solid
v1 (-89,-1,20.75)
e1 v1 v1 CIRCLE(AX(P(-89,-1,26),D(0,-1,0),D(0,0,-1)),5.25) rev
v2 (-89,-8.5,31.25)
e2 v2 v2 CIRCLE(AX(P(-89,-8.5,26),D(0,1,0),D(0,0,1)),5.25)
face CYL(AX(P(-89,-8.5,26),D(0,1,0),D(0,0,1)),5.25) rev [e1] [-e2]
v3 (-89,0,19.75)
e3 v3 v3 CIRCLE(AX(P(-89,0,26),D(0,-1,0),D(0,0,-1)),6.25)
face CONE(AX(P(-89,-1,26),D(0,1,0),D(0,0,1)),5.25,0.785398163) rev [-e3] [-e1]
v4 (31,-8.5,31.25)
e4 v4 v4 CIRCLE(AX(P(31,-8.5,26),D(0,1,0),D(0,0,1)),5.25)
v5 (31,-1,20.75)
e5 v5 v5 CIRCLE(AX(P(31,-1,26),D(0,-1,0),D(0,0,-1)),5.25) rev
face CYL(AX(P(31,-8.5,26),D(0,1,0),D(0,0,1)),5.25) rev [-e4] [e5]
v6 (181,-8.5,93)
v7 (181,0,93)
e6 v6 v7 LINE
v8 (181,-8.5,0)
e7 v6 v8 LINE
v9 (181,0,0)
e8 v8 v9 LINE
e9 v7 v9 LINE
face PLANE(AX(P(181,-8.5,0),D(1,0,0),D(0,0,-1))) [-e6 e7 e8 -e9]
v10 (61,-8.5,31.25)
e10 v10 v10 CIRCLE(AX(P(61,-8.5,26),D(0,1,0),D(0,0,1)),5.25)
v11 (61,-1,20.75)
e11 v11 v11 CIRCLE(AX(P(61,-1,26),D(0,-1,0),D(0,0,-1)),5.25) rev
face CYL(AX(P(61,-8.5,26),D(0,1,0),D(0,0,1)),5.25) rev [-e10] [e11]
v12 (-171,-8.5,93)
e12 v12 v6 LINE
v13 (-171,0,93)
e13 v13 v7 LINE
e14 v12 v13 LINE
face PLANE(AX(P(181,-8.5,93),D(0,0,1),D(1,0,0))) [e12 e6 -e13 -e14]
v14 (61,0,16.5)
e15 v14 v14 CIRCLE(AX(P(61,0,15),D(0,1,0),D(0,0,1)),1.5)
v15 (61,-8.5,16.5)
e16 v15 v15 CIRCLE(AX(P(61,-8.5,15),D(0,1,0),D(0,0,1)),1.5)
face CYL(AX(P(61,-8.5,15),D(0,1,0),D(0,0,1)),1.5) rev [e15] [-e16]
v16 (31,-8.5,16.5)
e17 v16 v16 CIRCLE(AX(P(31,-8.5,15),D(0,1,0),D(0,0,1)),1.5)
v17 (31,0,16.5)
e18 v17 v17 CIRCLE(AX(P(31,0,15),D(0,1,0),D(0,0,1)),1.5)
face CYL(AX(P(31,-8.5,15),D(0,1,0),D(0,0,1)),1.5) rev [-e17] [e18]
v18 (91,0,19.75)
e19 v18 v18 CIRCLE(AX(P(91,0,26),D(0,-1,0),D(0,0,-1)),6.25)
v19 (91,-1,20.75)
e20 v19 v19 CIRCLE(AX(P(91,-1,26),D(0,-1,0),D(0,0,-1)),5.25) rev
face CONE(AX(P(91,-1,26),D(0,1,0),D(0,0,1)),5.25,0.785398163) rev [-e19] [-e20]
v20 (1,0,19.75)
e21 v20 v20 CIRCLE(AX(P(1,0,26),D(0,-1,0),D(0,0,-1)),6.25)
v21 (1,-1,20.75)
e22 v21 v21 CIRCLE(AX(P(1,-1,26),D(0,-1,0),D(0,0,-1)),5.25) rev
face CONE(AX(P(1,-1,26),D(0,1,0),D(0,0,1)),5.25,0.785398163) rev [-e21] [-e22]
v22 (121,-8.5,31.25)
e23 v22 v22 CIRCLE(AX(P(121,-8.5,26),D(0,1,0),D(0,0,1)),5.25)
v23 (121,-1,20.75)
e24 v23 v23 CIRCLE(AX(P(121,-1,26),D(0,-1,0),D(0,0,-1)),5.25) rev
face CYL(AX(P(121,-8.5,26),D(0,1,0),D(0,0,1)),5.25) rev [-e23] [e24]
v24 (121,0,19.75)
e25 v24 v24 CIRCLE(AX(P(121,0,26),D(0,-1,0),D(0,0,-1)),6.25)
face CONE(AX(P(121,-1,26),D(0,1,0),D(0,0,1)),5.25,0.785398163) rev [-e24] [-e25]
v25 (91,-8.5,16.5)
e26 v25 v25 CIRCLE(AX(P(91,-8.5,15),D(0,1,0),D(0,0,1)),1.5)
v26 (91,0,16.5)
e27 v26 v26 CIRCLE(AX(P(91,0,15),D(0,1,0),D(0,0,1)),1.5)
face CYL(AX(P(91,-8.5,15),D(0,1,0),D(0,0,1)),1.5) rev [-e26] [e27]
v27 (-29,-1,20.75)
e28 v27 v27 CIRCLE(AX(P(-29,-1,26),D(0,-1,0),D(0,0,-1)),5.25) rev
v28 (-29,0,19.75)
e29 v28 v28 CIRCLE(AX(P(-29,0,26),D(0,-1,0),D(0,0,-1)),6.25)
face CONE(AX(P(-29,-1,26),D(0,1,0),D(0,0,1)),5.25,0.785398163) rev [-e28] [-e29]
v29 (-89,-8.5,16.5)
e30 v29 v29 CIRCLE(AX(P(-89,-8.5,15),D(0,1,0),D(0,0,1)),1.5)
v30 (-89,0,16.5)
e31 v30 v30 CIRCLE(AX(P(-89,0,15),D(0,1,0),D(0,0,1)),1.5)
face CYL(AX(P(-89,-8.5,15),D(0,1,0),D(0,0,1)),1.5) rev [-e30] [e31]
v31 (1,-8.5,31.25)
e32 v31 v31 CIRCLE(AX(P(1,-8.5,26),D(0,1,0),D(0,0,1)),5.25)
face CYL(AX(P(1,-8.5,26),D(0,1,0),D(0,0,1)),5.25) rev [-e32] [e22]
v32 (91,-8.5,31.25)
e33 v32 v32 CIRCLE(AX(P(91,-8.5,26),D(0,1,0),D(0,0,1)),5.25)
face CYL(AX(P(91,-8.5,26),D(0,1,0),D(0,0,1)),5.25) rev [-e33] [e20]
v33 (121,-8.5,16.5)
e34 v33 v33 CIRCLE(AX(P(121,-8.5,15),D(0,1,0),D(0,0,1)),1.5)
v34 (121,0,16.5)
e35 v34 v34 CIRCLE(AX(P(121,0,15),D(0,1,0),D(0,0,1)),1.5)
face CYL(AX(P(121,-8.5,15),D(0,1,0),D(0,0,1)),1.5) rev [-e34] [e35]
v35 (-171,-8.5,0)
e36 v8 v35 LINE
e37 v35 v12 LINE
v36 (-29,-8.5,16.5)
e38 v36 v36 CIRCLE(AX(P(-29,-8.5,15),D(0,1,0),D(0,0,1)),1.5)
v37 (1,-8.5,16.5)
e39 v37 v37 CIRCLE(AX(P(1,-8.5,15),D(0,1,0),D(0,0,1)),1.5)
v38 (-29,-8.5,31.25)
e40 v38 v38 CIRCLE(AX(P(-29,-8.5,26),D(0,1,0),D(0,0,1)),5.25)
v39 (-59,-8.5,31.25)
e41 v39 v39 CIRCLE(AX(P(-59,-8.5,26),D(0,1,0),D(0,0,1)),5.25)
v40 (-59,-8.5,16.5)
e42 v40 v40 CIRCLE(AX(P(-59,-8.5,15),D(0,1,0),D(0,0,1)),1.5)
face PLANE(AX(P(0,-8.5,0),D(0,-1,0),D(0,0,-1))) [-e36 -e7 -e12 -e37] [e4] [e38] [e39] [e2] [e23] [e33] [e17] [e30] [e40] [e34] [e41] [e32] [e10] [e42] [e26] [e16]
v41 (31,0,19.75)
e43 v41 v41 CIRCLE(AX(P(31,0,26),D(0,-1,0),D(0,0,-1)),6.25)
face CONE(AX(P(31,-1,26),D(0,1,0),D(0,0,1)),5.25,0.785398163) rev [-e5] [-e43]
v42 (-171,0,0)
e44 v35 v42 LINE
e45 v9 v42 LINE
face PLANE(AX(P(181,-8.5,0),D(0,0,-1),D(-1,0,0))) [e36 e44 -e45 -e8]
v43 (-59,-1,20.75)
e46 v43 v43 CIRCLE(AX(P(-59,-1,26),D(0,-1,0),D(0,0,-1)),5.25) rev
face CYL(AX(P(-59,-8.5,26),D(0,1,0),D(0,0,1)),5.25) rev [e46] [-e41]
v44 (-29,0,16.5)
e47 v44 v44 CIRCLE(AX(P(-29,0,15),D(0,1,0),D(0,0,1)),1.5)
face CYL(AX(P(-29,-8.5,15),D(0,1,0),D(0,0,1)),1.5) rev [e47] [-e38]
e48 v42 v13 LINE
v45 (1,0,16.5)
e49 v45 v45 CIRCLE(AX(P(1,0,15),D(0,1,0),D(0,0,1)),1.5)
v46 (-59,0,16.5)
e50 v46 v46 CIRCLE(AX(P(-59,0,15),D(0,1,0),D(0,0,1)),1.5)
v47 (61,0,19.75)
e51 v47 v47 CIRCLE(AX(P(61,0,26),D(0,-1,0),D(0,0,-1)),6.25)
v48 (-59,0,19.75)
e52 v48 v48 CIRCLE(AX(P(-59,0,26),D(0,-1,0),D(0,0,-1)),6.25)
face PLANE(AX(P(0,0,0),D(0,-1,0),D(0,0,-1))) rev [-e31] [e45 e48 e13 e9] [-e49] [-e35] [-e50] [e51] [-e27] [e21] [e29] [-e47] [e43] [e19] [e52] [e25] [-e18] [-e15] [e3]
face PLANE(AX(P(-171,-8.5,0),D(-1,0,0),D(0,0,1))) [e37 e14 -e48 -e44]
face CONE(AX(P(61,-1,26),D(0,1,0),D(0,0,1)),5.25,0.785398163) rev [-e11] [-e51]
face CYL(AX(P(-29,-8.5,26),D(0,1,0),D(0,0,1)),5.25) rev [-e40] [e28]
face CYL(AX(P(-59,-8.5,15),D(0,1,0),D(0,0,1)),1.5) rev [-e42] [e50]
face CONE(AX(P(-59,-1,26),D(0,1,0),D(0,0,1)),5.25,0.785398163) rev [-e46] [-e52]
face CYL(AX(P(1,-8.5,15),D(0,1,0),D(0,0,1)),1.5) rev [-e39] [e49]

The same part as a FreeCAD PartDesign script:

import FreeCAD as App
import Part
import Sketcher
Q = App.Units.Quantity


def edges_at(feature, points):
    """Names of the edges that pass closest to the given points."""
    edges = feature.Shape.Edges
    near = lambda p: min(range(len(edges)), key=lambda i: edges[i].distToShape(Part.Vertex(*p))[0])
    return sorted({f"Edge{near(p) + 1}" for p in points})


def add_polygon(sketch, points):
    """Adds a closed chain of lines whose ends are joined by coincident constraints."""
    first, n = sketch.GeometryCount, len(points)
    for a, b in zip(points, points[1:] + points[:1]):
        sketch.addGeometry(Part.LineSegment(App.Vector(*a, 0), App.Vector(*b, 0)), False)
    for i in range(n):
        sketch.addConstraint(Sketcher.Constraint("Coincident", first + i, 2, first + (i + 1) % n, 1))

doc = App.newDocument("Part")
body = doc.addObject("PartDesign::Body", "Body")

sketch1 = body.newObject("Sketcher::SketchObject", "Sketch")
sketch1.AttachmentSupport = (doc.getObject("XZ_Plane"), [""])
sketch1.MapMode = "FlatFace"
add_polygon(sketch1, [(-171, 0), (-171, 93), (181, 93), (181, 0)])
sketch1.addConstraint(Sketcher.Constraint("Vertical", 0))
sketch1.addConstraint(Sketcher.Constraint("Horizontal", 1))
sketch1.addConstraint(Sketcher.Constraint("Vertical", 2))
sketch1.addConstraint(Sketcher.Constraint("Horizontal", 3))
sketch1.addConstraint(Sketcher.Constraint("PointOnObject", 2, 2, -1))
sketch1.addConstraint(Sketcher.Constraint("DistanceX", 1, 1, 1, 2, Q("352 mm")))
sketch1.addConstraint(Sketcher.Constraint("DistanceY", 0, 1, 0, 2, Q("93 mm")))
sketch1.addConstraint(Sketcher.Constraint("DistanceX", 0, 2, -1, 1, Q("171 mm")))
pad1 = body.newObject("PartDesign::Pad", "Pad")
pad1.Profile = sketch1
pad1.Length = 8.5

sketch2 = body.newObject("Sketcher::SketchObject", "Sketch001")
sketch2.AttachmentSupport = (doc.getObject("XZ_Plane"), [""])
sketch2.MapMode = "FlatFace"
sketch2.addGeometry(Part.Circle(App.Vector(-89, 15, 0), App.Vector(0, 0, 1), 1.5), False)
sketch2.addGeometry(Part.Circle(App.Vector(-89, 26, 0), App.Vector(0, 0, 1), 5.2), False)
sketch2.addGeometry(Part.Circle(App.Vector(-59, 15, 0), App.Vector(0, 0, 1), 1.5), False)
sketch2.addGeometry(Part.Circle(App.Vector(-59, 26, 0), App.Vector(0, 0, 1), 5.2), False)
sketch2.addGeometry(Part.Circle(App.Vector(-29, 15, 0), App.Vector(0, 0, 1), 1.5), False)
sketch2.addGeometry(Part.Circle(App.Vector(-29, 26, 0), App.Vector(0, 0, 1), 5.2), False)
sketch2.addGeometry(Part.Circle(App.Vector(1, 15, 0), App.Vector(0, 0, 1), 1.5), False)
sketch2.addGeometry(Part.Circle(App.Vector(1, 26, 0), App.Vector(0, 0, 1), 5.2), False)
sketch2.addGeometry(Part.Circle(App.Vector(31, 15, 0), App.Vector(0, 0, 1), 1.5), False)
sketch2.addGeometry(Part.Circle(App.Vector(31, 26, 0), App.Vector(0, 0, 1), 5.2), False)
sketch2.addGeometry(Part.Circle(App.Vector(61, 15, 0), App.Vector(0, 0, 1), 1.5), False)
sketch2.addGeometry(Part.Circle(App.Vector(61, 26, 0), App.Vector(0, 0, 1), 5.2), False)
sketch2.addGeometry(Part.Circle(App.Vector(91, 15, 0), App.Vector(0, 0, 1), 1.5), False)
sketch2.addGeometry(Part.Circle(App.Vector(91, 26, 0), App.Vector(0, 0, 1), 5.2), False)
sketch2.addGeometry(Part.Circle(App.Vector(121, 15, 0), App.Vector(0, 0, 1), 1.5), False)
sketch2.addGeometry(Part.Circle(App.Vector(121, 26, 0), App.Vector(0, 0, 1), 5.2), False)
sketch2.addConstraint(Sketcher.Constraint("Equal", 0, 2))
sketch2.addConstraint(Sketcher.Constraint("Equal", 1, 3))
sketch2.addConstraint(Sketcher.Constraint("Equal", 2, 4))
sketch2.addConstraint(Sketcher.Constraint("Equal", 3, 5))
sketch2.addConstraint(Sketcher.Constraint("Equal", 4, 6))
sketch2.addConstraint(Sketcher.Constraint("Equal", 5, 7))
sketch2.addConstraint(Sketcher.Constraint("Equal", 6, 8))
sketch2.addConstraint(Sketcher.Constraint("Equal", 7, 9))
sketch2.addConstraint(Sketcher.Constraint("Equal", 8, 10))
sketch2.addConstraint(Sketcher.Constraint("Equal", 9, 11))
sketch2.addConstraint(Sketcher.Constraint("Equal", 10, 12))
sketch2.addConstraint(Sketcher.Constraint("Equal", 11, 13))
sketch2.addConstraint(Sketcher.Constraint("Equal", 12, 14))
sketch2.addConstraint(Sketcher.Constraint("Equal", 13, 15))
sketch2.addConstraint(Sketcher.Constraint("Horizontal", 0, 3, 2, 3))
sketch2.addConstraint(Sketcher.Constraint("Horizontal", 1, 3, 3, 3))
sketch2.addConstraint(Sketcher.Constraint("Horizontal", 2, 3, 4, 3))
sketch2.addConstraint(Sketcher.Constraint("Horizontal", 3, 3, 5, 3))
sketch2.addConstraint(Sketcher.Constraint("Horizontal", 4, 3, 6, 3))
sketch2.addConstraint(Sketcher.Constraint("Horizontal", 5, 3, 7, 3))
sketch2.addConstraint(Sketcher.Constraint("Horizontal", 6, 3, 8, 3))
sketch2.addConstraint(Sketcher.Constraint("Horizontal", 7, 3, 9, 3))
sketch2.addConstraint(Sketcher.Constraint("Horizontal", 8, 3, 10, 3))
sketch2.addConstraint(Sketcher.Constraint("Horizontal", 9, 3, 11, 3))
sketch2.addConstraint(Sketcher.Constraint("Horizontal", 10, 3, 12, 3))
sketch2.addConstraint(Sketcher.Constraint("Horizontal", 11, 3, 13, 3))
sketch2.addConstraint(Sketcher.Constraint("Horizontal", 12, 3, 14, 3))
sketch2.addConstraint(Sketcher.Constraint("Horizontal", 13, 3, 15, 3))
sketch2.addConstraint(Sketcher.Constraint("Vertical", 0, 3, 1, 3))
sketch2.addConstraint(Sketcher.Constraint("Vertical", 2, 3, 3, 3))
sketch2.addConstraint(Sketcher.Constraint("Vertical", 4, 3, 5, 3))
sketch2.addConstraint(Sketcher.Constraint("Vertical", 6, 3, 7, 3))
sketch2.addConstraint(Sketcher.Constraint("Vertical", 8, 3, 9, 3))
sketch2.addConstraint(Sketcher.Constraint("Vertical", 10, 3, 11, 3))
sketch2.addConstraint(Sketcher.Constraint("Vertical", 12, 3, 13, 3))
sketch2.addConstraint(Sketcher.Constraint("Vertical", 14, 3, 15, 3))
sketch2.addConstraint(Sketcher.Constraint("Diameter", 0, Q("3 mm")))
sketch2.addConstraint(Sketcher.Constraint("Diameter", 1, Q("10.5 mm")))
sketch2.addConstraint(Sketcher.Constraint("DistanceX", 0, 3, -1, 1, Q("89 mm")))
sketch2.addConstraint(Sketcher.Constraint("DistanceY", -1, 1, 0, 3, Q("15 mm")))
sketch2.addConstraint(Sketcher.Constraint("DistanceY", -1, 1, 1, 3, Q("26 mm")))
sketch2.addConstraint(Sketcher.Constraint("DistanceX", 2, 3, -1, 1, Q("59 mm")))
sketch2.addConstraint(Sketcher.Constraint("DistanceX", 4, 3, -1, 1, Q("29 mm")))
sketch2.addConstraint(Sketcher.Constraint("DistanceX", -1, 1, 6, 3, Q("1 mm")))
sketch2.addConstraint(Sketcher.Constraint("DistanceX", -1, 1, 8, 3, Q("31 mm")))
sketch2.addConstraint(Sketcher.Constraint("DistanceX", -1, 1, 10, 3, Q("61 mm")))
sketch2.addConstraint(Sketcher.Constraint("DistanceX", -1, 1, 12, 3, Q("91 mm")))
sketch2.addConstraint(Sketcher.Constraint("DistanceX", -1, 1, 14, 3, Q("121 mm")))
pocket1 = body.newObject("PartDesign::Pocket", "Pocket")
pocket1.Profile = sketch2
pocket1.Type = "ThroughAll"
pocket1.Reversed = True
doc.recompute()

chamfer = body.newObject("PartDesign::Chamfer", "Chamfer")
chamfer.Base = (pocket1, edges_at(pocket1, [
    (-34.25, 0, 26),
    (-4.25, 0, 26),
    (-94.25, 0, 26),
    (-64.25, 0, 26),
    (85.75, 0, 26),
    (115.75, 0, 26),
    (25.75, 0, 26),
    (55.75, 0, 26),
]))
chamfer.Size = 1

doc.recompute()
